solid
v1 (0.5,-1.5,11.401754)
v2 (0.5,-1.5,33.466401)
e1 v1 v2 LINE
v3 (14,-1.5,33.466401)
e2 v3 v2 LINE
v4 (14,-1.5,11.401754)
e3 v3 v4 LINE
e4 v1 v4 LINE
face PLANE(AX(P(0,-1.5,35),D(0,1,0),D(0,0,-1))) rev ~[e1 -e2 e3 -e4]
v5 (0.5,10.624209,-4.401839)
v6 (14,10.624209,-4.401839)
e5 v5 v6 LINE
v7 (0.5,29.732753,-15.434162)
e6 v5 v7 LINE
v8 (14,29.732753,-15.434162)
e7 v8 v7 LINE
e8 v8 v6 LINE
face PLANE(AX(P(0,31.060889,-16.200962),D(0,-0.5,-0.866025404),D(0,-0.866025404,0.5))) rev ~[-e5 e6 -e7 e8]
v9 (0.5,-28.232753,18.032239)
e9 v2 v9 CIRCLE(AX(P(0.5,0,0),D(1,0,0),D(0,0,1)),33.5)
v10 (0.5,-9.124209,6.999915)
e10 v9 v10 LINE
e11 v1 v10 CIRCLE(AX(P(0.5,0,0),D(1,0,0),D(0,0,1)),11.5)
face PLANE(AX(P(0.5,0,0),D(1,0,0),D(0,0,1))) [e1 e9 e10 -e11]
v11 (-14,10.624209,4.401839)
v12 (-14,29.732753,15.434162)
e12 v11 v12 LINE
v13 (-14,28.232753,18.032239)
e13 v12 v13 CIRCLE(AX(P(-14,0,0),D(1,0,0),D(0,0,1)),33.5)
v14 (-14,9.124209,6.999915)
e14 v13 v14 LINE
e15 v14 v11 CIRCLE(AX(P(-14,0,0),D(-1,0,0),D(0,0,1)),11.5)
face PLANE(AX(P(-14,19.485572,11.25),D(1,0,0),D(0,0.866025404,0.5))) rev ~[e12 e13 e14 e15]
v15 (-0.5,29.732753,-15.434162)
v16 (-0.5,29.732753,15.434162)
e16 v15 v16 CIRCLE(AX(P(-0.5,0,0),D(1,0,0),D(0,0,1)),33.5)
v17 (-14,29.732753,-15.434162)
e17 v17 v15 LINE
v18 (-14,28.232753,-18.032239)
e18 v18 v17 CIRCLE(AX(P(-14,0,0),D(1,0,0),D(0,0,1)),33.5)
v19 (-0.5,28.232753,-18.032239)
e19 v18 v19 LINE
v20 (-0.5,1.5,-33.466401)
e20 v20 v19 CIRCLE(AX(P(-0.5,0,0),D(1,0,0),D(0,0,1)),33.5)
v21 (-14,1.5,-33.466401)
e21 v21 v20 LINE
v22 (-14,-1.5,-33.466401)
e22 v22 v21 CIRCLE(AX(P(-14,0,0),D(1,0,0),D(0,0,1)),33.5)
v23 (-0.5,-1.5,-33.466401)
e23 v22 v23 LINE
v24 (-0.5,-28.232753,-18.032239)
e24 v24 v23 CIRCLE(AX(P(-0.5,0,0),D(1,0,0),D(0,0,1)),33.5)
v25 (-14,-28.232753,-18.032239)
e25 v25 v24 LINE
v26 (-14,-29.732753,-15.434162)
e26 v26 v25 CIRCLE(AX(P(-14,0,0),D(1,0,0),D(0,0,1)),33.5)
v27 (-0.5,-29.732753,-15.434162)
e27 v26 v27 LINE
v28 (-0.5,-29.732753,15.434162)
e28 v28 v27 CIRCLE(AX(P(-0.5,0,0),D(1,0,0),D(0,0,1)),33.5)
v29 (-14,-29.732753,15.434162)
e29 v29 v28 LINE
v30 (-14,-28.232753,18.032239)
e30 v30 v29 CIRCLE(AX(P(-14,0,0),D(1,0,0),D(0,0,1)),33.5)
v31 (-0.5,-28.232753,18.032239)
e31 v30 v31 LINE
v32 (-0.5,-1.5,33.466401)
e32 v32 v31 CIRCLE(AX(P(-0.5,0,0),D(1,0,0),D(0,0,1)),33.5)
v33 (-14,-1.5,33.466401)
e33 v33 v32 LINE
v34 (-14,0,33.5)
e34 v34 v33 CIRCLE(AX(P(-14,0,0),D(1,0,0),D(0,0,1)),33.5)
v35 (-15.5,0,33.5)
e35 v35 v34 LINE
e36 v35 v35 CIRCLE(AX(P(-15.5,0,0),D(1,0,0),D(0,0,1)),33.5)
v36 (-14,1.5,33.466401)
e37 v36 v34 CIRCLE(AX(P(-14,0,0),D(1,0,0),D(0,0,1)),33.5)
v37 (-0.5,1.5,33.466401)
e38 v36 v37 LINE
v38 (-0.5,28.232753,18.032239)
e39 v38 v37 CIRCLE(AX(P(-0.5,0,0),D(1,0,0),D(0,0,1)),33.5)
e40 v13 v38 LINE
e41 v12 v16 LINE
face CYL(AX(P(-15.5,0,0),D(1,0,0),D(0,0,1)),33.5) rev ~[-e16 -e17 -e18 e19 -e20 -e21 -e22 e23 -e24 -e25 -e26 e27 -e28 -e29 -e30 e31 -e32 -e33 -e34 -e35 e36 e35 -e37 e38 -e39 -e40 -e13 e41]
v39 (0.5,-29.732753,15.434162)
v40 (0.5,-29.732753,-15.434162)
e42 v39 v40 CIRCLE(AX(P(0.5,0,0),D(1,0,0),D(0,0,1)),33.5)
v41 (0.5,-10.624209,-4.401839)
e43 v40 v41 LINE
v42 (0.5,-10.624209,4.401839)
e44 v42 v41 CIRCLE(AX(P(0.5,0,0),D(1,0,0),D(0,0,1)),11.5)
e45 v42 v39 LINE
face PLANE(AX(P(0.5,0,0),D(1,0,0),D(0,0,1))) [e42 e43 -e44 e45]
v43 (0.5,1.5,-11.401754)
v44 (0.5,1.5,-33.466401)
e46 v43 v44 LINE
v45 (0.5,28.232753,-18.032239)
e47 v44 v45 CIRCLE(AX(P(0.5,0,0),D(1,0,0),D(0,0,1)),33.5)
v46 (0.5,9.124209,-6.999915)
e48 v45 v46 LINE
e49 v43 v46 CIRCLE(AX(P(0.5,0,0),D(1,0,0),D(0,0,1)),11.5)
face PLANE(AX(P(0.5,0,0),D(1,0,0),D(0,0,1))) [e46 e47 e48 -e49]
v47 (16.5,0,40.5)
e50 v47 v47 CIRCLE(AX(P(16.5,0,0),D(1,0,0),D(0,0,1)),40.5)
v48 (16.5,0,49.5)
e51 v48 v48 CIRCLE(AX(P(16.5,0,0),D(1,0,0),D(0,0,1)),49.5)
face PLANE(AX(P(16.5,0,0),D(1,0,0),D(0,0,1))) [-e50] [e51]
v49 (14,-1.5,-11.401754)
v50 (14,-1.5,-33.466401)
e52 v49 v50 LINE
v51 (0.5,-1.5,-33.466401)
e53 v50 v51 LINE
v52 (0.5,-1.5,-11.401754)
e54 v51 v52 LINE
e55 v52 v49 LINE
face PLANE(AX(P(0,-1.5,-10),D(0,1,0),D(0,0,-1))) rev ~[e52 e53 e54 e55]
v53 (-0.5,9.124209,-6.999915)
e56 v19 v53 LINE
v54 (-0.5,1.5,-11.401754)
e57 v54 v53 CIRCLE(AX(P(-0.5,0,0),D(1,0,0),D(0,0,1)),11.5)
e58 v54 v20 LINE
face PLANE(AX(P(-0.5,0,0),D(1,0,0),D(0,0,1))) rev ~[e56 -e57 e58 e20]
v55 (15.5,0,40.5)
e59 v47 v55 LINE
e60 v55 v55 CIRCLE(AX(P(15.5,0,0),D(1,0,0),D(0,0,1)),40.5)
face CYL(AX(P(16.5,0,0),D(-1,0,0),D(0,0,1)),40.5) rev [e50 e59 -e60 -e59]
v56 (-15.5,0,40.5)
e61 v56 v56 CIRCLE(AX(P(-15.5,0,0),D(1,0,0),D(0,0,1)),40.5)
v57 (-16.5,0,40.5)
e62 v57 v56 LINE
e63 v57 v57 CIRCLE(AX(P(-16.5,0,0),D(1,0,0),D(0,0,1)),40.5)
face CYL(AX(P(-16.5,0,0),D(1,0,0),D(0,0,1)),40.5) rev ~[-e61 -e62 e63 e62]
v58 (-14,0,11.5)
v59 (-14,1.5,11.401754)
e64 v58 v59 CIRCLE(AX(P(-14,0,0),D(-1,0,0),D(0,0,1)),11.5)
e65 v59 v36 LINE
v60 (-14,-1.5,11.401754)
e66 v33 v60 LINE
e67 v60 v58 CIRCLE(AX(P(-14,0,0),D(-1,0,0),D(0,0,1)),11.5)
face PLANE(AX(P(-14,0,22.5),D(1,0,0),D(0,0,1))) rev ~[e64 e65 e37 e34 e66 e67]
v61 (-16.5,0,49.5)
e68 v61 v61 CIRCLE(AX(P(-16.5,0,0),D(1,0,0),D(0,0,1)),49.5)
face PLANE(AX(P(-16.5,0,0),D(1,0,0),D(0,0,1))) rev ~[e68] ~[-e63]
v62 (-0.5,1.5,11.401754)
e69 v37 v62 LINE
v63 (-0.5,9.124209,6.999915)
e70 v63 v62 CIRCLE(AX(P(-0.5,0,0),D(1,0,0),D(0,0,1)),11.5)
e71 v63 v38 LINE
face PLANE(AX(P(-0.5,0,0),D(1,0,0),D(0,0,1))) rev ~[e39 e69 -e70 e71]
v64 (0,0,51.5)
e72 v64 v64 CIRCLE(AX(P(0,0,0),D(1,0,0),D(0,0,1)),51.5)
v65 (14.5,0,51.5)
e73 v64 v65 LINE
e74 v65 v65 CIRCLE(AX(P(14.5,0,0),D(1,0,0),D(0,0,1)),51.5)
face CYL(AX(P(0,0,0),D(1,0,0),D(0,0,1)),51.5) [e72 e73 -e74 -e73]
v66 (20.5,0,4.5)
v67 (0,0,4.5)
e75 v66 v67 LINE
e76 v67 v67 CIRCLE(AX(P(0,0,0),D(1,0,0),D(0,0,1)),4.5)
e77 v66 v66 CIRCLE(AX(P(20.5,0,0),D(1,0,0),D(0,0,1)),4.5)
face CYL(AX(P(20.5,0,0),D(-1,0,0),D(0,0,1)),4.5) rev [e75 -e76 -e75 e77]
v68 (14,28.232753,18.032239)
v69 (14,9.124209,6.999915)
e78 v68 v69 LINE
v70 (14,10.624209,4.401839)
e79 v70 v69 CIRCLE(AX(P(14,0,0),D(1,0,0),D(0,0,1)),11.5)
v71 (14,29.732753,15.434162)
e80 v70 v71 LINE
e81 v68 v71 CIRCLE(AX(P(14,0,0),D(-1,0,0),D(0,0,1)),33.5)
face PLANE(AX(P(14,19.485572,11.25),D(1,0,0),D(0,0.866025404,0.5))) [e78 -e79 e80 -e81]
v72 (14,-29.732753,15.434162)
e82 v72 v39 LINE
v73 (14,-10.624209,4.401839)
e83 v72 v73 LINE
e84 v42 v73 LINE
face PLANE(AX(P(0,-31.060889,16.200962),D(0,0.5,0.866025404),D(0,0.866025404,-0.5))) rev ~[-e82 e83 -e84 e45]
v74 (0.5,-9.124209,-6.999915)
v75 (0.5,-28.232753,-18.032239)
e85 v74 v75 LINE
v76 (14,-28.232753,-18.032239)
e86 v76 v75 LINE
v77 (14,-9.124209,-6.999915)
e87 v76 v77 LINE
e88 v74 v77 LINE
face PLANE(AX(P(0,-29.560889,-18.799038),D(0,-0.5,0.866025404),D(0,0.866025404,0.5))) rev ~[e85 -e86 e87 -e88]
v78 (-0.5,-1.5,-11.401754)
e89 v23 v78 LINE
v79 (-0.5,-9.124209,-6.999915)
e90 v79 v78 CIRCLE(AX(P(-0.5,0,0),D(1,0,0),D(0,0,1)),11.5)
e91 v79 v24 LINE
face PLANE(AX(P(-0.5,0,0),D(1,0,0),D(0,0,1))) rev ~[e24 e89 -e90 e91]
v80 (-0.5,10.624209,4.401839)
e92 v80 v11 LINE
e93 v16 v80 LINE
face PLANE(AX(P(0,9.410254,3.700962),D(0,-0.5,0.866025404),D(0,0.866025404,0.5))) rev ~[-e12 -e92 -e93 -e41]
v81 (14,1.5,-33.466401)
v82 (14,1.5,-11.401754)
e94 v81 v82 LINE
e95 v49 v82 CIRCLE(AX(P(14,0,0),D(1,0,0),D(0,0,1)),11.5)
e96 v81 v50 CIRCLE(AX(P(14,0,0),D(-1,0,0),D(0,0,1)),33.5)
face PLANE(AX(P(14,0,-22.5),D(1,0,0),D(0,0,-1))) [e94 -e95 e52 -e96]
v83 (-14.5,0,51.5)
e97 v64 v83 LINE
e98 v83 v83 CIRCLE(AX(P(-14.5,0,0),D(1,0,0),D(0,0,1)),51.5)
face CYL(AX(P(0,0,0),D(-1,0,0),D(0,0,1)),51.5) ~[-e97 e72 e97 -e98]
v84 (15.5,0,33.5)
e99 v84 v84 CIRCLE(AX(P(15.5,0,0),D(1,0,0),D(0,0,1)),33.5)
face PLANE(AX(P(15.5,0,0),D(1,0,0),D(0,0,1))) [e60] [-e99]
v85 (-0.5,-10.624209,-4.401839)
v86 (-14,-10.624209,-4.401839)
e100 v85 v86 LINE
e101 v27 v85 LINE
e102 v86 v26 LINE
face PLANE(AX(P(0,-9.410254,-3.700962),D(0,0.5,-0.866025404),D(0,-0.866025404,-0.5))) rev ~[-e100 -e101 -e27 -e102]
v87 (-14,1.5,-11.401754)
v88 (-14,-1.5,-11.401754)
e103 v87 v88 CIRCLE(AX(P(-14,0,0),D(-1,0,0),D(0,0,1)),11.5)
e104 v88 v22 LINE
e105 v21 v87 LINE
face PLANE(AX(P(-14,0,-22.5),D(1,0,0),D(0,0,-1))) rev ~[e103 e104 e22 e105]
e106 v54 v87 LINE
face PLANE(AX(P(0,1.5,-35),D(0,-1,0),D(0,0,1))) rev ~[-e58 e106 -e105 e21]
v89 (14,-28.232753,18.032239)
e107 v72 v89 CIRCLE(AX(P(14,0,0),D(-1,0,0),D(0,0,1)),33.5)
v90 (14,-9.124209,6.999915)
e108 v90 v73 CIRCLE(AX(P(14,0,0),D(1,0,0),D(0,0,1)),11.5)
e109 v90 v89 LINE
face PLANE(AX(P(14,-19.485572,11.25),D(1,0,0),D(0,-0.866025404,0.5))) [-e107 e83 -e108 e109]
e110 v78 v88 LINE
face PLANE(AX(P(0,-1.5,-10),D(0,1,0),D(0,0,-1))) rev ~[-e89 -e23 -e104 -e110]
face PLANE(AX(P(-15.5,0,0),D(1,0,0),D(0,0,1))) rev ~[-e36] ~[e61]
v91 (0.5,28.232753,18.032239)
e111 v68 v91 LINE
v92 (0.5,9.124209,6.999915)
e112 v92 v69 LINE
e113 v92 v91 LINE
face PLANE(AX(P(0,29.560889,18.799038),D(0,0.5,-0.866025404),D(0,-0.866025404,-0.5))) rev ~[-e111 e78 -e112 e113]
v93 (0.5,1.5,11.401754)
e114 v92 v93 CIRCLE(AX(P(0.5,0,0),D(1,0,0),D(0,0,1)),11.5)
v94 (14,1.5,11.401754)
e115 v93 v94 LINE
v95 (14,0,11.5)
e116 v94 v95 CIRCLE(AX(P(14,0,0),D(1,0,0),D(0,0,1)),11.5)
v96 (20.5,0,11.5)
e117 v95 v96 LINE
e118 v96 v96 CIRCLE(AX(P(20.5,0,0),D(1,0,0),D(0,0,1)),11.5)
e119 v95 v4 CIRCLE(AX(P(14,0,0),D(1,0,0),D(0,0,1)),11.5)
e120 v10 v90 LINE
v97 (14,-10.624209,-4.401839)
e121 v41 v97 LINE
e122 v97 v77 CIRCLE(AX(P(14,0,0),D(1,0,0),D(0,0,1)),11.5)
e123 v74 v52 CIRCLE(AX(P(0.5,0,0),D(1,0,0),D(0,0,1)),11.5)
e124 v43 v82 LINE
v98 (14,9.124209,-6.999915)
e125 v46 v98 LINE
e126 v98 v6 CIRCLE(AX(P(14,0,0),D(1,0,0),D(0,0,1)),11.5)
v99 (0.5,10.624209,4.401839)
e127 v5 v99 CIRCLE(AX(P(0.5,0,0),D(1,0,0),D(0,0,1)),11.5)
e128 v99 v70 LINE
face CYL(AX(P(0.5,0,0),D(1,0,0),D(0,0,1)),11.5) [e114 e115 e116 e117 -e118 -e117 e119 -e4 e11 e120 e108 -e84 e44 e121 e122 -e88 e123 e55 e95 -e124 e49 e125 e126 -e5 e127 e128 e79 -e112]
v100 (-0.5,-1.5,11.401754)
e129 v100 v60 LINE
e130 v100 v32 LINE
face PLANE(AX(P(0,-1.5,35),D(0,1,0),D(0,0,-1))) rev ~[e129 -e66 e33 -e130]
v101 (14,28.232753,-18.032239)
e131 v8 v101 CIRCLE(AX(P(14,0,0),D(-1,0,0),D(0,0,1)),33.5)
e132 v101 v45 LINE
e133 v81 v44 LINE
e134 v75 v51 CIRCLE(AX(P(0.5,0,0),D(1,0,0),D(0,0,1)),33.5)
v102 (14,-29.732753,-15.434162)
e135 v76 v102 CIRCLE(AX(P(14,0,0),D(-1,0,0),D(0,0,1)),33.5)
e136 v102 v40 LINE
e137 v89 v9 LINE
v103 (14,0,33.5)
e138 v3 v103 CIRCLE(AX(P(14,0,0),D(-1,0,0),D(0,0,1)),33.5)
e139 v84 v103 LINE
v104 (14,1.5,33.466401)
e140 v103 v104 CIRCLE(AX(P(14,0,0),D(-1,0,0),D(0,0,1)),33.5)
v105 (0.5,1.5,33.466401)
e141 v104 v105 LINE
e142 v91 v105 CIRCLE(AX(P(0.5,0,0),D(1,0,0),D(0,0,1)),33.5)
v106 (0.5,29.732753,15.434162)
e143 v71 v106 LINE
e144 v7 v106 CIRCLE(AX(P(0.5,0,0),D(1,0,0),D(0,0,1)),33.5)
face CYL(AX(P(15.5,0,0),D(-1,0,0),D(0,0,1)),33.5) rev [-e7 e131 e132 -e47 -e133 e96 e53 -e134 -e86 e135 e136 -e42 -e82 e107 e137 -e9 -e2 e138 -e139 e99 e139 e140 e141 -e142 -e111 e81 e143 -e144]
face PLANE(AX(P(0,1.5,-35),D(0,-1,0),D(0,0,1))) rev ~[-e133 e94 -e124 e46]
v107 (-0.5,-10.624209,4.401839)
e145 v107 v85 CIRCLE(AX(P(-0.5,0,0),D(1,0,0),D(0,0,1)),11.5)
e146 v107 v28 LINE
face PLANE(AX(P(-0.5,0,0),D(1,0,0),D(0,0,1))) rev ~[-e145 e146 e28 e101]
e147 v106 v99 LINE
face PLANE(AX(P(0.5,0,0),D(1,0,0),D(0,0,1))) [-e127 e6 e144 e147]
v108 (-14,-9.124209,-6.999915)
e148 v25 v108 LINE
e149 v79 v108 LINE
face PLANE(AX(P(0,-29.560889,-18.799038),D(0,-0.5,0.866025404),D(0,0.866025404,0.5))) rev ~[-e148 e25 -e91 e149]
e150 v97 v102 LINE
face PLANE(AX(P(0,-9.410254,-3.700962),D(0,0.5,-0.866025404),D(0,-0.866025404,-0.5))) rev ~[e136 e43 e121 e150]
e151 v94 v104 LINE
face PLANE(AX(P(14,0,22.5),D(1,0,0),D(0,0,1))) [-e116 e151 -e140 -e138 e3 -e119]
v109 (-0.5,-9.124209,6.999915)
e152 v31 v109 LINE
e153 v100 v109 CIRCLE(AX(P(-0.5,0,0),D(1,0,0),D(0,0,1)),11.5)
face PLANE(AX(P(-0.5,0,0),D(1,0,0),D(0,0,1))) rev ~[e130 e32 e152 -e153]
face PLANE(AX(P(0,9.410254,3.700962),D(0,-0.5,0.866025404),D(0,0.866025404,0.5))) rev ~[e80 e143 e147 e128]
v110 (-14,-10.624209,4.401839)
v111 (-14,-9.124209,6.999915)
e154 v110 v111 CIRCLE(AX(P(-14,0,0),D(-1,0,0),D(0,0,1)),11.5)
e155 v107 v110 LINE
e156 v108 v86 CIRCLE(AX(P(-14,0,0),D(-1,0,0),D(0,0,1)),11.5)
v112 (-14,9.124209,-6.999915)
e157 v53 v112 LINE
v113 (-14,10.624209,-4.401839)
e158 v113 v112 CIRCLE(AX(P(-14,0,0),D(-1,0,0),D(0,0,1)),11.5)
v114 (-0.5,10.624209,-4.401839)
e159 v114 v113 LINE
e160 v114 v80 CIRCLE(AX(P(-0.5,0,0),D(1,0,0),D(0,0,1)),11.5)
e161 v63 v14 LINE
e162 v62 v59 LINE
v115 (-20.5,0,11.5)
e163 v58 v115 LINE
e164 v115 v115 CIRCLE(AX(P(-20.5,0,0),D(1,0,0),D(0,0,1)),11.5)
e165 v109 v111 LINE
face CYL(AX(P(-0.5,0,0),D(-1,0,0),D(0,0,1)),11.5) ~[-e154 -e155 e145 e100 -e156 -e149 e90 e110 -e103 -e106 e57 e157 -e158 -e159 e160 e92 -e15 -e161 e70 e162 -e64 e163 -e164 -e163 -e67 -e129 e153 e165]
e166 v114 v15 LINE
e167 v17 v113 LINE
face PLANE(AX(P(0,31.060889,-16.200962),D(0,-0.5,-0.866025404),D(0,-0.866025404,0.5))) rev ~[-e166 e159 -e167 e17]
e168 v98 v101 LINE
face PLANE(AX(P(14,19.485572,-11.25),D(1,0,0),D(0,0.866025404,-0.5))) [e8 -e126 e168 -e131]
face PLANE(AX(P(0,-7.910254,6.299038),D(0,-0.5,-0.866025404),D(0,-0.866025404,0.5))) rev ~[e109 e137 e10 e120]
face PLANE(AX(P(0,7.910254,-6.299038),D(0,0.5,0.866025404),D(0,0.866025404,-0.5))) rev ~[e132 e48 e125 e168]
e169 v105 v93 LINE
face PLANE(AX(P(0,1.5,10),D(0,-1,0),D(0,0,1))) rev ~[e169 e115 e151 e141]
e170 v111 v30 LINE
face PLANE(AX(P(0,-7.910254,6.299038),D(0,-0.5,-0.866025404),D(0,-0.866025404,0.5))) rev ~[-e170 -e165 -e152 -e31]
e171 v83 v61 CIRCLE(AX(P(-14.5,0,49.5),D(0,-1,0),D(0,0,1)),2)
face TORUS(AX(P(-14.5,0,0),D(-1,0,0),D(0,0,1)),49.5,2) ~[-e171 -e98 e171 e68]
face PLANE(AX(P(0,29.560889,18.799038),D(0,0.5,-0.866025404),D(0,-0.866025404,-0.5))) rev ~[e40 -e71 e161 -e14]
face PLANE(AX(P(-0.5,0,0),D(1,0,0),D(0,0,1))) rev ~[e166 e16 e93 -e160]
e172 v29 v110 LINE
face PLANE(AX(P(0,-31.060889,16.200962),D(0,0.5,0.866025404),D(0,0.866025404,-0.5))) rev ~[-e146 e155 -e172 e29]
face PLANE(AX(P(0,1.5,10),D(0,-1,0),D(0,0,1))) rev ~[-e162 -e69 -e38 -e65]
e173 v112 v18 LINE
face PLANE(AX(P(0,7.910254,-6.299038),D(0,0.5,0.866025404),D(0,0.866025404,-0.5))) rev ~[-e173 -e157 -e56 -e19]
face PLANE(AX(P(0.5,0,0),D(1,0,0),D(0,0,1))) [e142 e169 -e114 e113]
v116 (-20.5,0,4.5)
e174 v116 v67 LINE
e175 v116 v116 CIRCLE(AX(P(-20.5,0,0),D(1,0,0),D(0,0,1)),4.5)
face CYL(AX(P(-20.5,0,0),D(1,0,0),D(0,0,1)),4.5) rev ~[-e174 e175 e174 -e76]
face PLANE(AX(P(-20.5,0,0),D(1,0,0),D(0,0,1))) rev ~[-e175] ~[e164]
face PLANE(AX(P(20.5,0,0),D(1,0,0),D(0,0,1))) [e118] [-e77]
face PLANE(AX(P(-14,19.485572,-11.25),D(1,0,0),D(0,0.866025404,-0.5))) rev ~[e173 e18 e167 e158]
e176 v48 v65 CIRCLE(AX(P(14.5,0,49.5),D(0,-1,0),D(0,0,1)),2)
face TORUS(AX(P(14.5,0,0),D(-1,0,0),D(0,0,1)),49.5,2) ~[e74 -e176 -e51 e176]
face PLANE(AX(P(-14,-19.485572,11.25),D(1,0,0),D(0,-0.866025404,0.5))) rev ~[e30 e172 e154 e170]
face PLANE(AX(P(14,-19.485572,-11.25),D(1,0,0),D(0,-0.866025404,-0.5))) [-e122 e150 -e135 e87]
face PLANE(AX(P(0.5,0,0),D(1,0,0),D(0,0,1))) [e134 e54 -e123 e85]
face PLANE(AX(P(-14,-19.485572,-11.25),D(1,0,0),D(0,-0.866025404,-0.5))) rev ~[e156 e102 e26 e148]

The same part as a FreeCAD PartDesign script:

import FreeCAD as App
import Part
import Sketcher

V = App.Vector


def edges_at(feature, points):
    """Names of the edges that pass closest to the given points."""
    edges = feature.Shape.Edges
    near = lambda p: min(range(len(edges)), key=lambda i: edges[i].distToShape(Part.Vertex(*p))[0])
    return sorted({f"Edge{near(p) + 1}" for p in points})

doc = App.newDocument("Part")
body = doc.addObject("PartDesign::Body", "Body")

# Sketch on XZ plane
sketch1 = body.newObject("Sketcher::SketchObject", "Sketch")
sketch1.AttachmentSupport = (doc.getObject("XZ_Plane"), [""])
sketch1.MapMode = "FlatFace"
sketch1.addGeometry([
    Part.LineSegment(V(15.5, 33.5, 0), V(15.5, 40.5, 0)),  # 0
    Part.LineSegment(V(15.5, 40.5, 0), V(16.5, 40.5, 0)),  # 1
    Part.LineSegment(V(16.5, 40.5, 0), V(16.5, 51.5, 0)),  # 2
    Part.LineSegment(V(16.5, 51.5, 0), V(-16.5, 51.5, 0)),  # 3
    Part.LineSegment(V(-16.5, 51.5, 0), V(-16.5, 40.5, 0)),  # 4
    Part.LineSegment(V(-16.5, 40.5, 0), V(-15.5, 40.5, 0)),  # 5
    Part.LineSegment(V(-15.5, 40.5, 0), V(-15.5, 33.5, 0)),  # 6
    Part.LineSegment(V(-15.5, 33.5, 0), V(-0.5, 33.5, 0)),  # 7
    Part.LineSegment(V(-0.5, 33.5, 0), V(-0.5, 11.5, 0)),  # 8
    Part.LineSegment(V(-0.5, 11.5, 0), V(-20.5, 11.5, 0)),  # 9
    Part.LineSegment(V(-20.5, 11.5, 0), V(-20.5, 4.5, 0)),  # 10
    Part.LineSegment(V(-20.5, 4.5, 0), V(20.5, 4.5, 0)),  # 11
    Part.LineSegment(V(20.5, 4.5, 0), V(20.5, 11.5, 0)),  # 12
    Part.LineSegment(V(20.5, 11.5, 0), V(0.5, 11.5, 0)),  # 13
    Part.LineSegment(V(0.5, 11.5, 0), V(0.5, 33.5, 0)),  # 14
    Part.LineSegment(V(0.5, 33.5, 0), V(15.5, 33.5, 0)),  # 15
], False)
sketch1.addConstraint([
    Sketcher.Constraint("Coincident", 0, 2, 1, 1),
    Sketcher.Constraint("Coincident", 1, 2, 2, 1),
    Sketcher.Constraint("Coincident", 2, 2, 3, 1),
    Sketcher.Constraint("Coincident", 3, 2, 4, 1),
    Sketcher.Constraint("Coincident", 4, 2, 5, 1),
    Sketcher.Constraint("Coincident", 5, 2, 6, 1),
    Sketcher.Constraint("Coincident", 6, 2, 7, 1),
    Sketcher.Constraint("Coincident", 7, 2, 8, 1),
    Sketcher.Constraint("Coincident", 8, 2, 9, 1),
    Sketcher.Constraint("Coincident", 9, 2, 10, 1),
    Sketcher.Constraint("Coincident", 10, 2, 11, 1),
    Sketcher.Constraint("Coincident", 11, 2, 12, 1),
    Sketcher.Constraint("Coincident", 12, 2, 13, 1),
    Sketcher.Constraint("Coincident", 13, 2, 14, 1),
    Sketcher.Constraint("Coincident", 14, 2, 15, 1),
    Sketcher.Constraint("Coincident", 15, 2, 0, 1),
    Sketcher.Constraint("Vertical", 0),
    Sketcher.Constraint("Horizontal", 1),
    Sketcher.Constraint("Vertical", 2),
    Sketcher.Constraint("Horizontal", 3),
    Sketcher.Constraint("Vertical", 4),
    Sketcher.Constraint("Horizontal", 5),
    Sketcher.Constraint("Vertical", 6),
    Sketcher.Constraint("Horizontal", 7),
    Sketcher.Constraint("Vertical", 8),
    Sketcher.Constraint("Horizontal", 9),
    Sketcher.Constraint("Vertical", 10),
    Sketcher.Constraint("Horizontal", 11),
    Sketcher.Constraint("Vertical", 12),
    Sketcher.Constraint("Horizontal", 13),
    Sketcher.Constraint("Vertical", 14),
    Sketcher.Constraint("Horizontal", 15),
    Sketcher.Constraint("Symmetric", 1, 2, 4, 2, -2),
    Sketcher.Constraint("Symmetric", 9, 2, 12, 2, -2),
    Sketcher.Constraint("Symmetric", 7, 2, 14, 2, -2),
    Sketcher.Constraint("Equal", 1, 5),
    Sketcher.Constraint("Equal", 6, 10),
    Sketcher.Constraint("DistanceX", 1, 1, 1, 2, 1.0),
    Sketcher.Constraint("DistanceX", 3, 2, 3, 1, 33.0),
    Sketcher.Constraint("DistanceX", 7, 1, 7, 2, 15.0),
    Sketcher.Constraint("DistanceX", 9, 2, 9, 1, 20.0),
    Sketcher.Constraint("DistanceY", 0, 1, 0, 2, 7.0),
    Sketcher.Constraint("DistanceY", 2, 1, 2, 2, 11.0),
    Sketcher.Constraint("DistanceY", 8, 2, 8, 1, 22.0),
    Sketcher.Constraint("DistanceY", -1, 1, 0, 2, 40.5),
])
revolution = body.newObject("PartDesign::Revolution", "Revolution")
revolution.Profile = sketch1
revolution.ReferenceAxis = (sketch1, ["H_Axis"])
revolution.Angle = 360

# Sketch on YZ plane
sketch2 = body.newObject("Sketcher::SketchObject", "Sketch001")
sketch2.AttachmentSupport = (doc.getObject("YZ_Plane"), [""])
sketch2.MapMode = "FlatFace"
sketch2.addGeometry([
    Part.LineSegment(V(-1.5, 10, 0), V(1.5, 10, 0)),
    Part.LineSegment(V(1.5, 10, 0), V(1.5, 35, 0)),
    Part.LineSegment(V(1.5, 35, 0), V(-1.5, 35, 0)),
    Part.LineSegment(V(-1.5, 35, 0), V(-1.5, 10, 0)),
], False)
sketch2.addConstraint([
    Sketcher.Constraint("Coincident", 0, 2, 1, 1),
    Sketcher.Constraint("Coincident", 1, 2, 2, 1),
    Sketcher.Constraint("Coincident", 2, 2, 3, 1),
    Sketcher.Constraint("Coincident", 3, 2, 0, 1),
    Sketcher.Constraint("Horizontal", 0),
    Sketcher.Constraint("Vertical", 1),
    Sketcher.Constraint("Horizontal", 2),
    Sketcher.Constraint("Vertical", 3),
    Sketcher.Constraint("DistanceX", 0, 1, 0, 2, 3.0),
    Sketcher.Constraint("DistanceY", 1, 1, 1, 2, 25.0),
    Sketcher.Constraint("DistanceY", -1, 1, 0, 2, 10.0),
    Sketcher.Constraint("DistanceX", -1, 1, 0, 2, 1.5),
])
pad1 = body.newObject("PartDesign::Pad", "Pad")
pad1.Profile = sketch2
pad1.Length = 28
pad1.Midplane = True
doc.recompute()

polarpattern = body.newObject("PartDesign::PolarPattern", "PolarPattern")
polarpattern.Originals = [pad1]
polarpattern.Axis = (doc.getObject("X_Axis"), [""])
polarpattern.Angle = 360
polarpattern.Occurrences = 6
body.Tip = polarpattern
doc.recompute()

fillet = body.newObject("PartDesign::Fillet", "Fillet")
fillet.Base = (polarpattern, edges_at(polarpattern, [(16.5, 0, -51.5), (-16.5, 0, -51.5)]))
fillet.Radius = 2

doc.recompute()
